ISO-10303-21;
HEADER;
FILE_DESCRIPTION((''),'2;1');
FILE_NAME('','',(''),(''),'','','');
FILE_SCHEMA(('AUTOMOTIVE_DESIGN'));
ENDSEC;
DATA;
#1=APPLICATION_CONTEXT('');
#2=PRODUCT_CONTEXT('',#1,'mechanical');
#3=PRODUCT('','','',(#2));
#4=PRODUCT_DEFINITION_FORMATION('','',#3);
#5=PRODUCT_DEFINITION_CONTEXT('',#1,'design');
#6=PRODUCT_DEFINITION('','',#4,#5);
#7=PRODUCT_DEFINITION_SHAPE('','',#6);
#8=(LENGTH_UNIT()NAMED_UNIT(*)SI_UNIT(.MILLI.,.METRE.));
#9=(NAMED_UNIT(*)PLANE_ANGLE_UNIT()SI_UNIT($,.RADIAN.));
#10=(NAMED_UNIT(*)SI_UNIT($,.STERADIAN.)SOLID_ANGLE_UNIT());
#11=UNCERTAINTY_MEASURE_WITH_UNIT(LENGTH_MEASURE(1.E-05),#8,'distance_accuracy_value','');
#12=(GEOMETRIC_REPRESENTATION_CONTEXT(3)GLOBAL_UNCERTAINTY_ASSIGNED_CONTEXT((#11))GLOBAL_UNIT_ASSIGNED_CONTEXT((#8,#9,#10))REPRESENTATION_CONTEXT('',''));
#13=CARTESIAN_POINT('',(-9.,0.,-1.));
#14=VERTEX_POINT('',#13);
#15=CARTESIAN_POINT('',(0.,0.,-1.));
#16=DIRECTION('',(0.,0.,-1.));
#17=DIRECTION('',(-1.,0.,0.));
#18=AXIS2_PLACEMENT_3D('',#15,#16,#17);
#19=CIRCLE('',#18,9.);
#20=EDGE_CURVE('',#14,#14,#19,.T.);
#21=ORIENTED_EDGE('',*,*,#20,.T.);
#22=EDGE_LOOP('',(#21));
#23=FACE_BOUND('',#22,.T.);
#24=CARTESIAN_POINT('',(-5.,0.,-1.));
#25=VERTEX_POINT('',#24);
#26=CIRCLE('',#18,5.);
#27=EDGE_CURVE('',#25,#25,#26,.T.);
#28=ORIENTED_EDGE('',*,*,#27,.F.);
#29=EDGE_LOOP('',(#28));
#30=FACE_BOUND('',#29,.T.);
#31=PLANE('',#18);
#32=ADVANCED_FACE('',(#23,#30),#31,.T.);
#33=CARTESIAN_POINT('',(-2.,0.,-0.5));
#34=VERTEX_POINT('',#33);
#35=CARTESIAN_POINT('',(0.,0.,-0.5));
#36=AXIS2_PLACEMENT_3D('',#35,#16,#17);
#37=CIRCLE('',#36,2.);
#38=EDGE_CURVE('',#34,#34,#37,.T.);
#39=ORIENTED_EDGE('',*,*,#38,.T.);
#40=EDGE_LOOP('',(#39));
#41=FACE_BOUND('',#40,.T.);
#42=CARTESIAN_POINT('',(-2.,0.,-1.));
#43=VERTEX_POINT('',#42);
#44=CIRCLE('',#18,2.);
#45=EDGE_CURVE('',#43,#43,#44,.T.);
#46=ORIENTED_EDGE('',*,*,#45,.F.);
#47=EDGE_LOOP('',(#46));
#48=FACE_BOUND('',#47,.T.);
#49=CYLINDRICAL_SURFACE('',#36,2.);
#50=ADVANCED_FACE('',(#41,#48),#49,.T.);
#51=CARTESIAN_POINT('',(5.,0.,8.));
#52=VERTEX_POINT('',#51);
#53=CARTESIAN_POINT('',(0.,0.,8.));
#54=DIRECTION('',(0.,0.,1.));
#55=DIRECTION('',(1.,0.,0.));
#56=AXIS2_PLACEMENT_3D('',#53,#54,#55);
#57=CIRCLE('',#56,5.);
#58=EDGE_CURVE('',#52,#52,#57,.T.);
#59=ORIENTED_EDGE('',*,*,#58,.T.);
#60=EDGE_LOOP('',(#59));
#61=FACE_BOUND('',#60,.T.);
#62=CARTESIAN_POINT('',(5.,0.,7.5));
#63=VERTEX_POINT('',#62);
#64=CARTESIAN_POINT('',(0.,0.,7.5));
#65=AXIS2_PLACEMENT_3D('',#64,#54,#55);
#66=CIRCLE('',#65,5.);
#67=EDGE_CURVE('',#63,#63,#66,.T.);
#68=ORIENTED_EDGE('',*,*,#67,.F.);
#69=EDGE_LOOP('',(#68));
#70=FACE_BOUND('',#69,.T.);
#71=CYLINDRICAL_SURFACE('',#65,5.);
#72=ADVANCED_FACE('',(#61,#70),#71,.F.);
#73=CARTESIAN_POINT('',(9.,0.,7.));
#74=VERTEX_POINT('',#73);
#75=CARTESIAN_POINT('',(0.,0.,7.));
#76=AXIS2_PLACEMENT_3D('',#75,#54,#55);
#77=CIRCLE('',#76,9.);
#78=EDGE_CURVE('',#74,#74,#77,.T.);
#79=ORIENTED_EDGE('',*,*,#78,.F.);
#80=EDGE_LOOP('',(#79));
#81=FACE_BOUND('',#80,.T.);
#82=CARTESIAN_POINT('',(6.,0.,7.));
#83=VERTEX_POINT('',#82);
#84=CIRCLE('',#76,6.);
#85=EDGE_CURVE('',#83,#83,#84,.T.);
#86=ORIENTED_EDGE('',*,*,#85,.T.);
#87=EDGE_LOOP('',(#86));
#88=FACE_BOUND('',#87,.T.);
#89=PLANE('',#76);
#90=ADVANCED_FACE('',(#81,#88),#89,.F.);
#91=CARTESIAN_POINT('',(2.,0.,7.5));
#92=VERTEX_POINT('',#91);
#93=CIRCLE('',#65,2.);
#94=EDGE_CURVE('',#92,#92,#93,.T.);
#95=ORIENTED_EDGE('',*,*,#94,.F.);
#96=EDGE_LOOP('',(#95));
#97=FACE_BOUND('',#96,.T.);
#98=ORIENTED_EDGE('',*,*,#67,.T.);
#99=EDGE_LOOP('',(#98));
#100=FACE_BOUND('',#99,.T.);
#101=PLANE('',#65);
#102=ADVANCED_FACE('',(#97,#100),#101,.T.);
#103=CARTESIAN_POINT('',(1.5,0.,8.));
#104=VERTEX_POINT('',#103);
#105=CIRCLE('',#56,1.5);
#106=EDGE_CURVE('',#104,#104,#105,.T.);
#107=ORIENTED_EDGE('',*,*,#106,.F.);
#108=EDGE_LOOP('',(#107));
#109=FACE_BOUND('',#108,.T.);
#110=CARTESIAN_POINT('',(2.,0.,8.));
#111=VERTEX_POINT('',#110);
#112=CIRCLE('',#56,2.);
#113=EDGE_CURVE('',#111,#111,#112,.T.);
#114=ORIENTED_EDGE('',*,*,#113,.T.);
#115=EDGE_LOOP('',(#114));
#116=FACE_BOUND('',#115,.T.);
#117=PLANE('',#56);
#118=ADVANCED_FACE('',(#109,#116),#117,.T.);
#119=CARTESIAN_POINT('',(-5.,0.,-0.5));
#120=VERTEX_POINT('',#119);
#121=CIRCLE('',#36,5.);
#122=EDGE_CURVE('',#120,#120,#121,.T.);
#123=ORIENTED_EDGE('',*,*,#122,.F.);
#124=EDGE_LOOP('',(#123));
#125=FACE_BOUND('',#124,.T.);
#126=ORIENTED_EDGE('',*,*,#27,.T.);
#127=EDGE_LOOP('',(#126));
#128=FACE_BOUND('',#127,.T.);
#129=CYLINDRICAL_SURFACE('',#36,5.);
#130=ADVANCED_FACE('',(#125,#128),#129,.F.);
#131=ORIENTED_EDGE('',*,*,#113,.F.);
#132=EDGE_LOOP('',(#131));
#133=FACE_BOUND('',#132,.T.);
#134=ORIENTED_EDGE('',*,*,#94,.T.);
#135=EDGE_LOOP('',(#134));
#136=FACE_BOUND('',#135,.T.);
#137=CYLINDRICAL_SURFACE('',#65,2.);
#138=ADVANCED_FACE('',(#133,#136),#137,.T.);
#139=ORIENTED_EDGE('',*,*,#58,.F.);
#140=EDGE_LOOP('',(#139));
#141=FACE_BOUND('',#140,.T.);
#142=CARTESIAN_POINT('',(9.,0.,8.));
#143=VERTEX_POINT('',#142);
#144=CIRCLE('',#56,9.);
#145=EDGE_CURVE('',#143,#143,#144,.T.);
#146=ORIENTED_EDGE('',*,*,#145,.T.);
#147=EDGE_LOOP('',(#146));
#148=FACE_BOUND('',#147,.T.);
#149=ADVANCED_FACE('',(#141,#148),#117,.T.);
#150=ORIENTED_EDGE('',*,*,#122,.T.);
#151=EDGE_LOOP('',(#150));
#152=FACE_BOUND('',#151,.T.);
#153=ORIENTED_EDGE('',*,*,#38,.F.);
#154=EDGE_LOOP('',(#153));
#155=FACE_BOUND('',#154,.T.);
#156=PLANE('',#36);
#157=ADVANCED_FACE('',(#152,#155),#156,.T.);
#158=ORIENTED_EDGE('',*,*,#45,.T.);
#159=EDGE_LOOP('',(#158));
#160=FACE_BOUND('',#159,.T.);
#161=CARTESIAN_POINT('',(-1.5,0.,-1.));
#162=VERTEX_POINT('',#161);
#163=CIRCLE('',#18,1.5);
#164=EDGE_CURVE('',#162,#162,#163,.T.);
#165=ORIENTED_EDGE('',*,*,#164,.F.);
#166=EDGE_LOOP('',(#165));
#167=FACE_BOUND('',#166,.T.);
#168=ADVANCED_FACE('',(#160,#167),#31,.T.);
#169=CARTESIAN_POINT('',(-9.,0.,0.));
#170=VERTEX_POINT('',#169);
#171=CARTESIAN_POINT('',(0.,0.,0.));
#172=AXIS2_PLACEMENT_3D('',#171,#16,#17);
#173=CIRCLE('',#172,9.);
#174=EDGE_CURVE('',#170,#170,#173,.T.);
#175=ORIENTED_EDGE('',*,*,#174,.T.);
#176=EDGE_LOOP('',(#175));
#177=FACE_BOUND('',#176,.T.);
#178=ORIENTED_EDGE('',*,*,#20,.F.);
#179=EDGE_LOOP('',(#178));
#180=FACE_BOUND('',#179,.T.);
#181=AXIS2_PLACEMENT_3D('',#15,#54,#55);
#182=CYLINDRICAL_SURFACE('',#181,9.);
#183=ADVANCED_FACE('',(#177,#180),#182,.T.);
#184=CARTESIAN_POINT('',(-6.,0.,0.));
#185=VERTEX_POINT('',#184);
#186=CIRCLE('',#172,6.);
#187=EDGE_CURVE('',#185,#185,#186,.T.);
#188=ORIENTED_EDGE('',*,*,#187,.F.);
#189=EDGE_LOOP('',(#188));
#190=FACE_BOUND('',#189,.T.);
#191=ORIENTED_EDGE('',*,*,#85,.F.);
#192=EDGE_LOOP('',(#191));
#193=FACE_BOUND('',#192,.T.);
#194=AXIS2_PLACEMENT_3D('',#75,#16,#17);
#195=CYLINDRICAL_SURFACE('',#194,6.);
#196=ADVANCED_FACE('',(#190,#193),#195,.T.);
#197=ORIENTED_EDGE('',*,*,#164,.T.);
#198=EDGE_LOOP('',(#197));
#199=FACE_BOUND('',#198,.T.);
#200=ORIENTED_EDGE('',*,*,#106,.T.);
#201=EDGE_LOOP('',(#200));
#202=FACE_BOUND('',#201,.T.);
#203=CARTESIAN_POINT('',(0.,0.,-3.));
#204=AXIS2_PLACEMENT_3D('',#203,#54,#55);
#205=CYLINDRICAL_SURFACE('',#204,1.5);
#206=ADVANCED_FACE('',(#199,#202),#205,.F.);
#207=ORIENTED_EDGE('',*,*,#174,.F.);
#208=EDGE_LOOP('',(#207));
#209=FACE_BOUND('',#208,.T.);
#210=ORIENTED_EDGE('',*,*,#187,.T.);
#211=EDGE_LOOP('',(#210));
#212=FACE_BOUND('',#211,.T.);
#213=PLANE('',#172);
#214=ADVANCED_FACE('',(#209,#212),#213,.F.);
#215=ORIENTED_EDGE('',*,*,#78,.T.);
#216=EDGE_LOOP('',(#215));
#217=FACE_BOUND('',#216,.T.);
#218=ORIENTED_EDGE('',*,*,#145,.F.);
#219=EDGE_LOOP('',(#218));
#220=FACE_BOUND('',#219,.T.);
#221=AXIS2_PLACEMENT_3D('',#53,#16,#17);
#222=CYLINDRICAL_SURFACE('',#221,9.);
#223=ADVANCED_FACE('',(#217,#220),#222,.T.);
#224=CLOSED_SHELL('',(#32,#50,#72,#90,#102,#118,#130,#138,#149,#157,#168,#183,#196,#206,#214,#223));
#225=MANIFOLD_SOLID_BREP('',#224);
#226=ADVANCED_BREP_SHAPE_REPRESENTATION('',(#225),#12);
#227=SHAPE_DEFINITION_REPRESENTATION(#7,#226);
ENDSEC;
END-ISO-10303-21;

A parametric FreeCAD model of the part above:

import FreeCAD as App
import Part
import Sketcher
from FreeCAD import Vector

doc = App.newDocument("Part")
params = doc.addObject("Spreadsheet::Sheet", "Params")
for row, (alias, value) in enumerate([
    ("sketch1_diameter", "12 mm"),
    ("pad1_length", "7 mm"),
    ("sketch2_diameter", "18 mm"),
    ("pad2_length", "1 mm"),
    ("sketch3_diameter", "18 mm"),
    ("pad3_length", "1 mm"),
    ("sketch4_diameter", "3 mm"),
    ("pocket1_length", "11 mm"),
    ("sketch5_diameter", "10 mm"),
    ("sketch5_diameter2", "4 mm"),
    ("pocket2_length", "0.5 mm"),
    ("sketch6_diameter", "10 mm"),
    ("sketch6_diameter2", "4 mm"),
    ("pocket3_length", "0.5 mm"),
], start=1):
    params.set(f"A{row}", alias)
    params.set(f"B{row}", "=" + value)
    params.setAlias(f"B{row}", alias)

body = doc.addObject("PartDesign::Body", "Body")

sketch1 = body.newObject("Sketcher::SketchObject", "Sketch")
sketch1.AttachmentSupport = (doc.getObject("XY_Plane"), [""])
sketch1.MapMode = "FlatFace"
sketch1.addGeometry(Part.Circle(Vector(0, 0, 0), Vector(0, 0, 1), 6), False)
sketch1.addConstraint(Sketcher.Constraint("Coincident", 0, 3, -1, 1))
sketch1.addConstraint(Sketcher.Constraint("Diameter", 0, 12.0))
sketch1.setExpression("Constraints[1]", "Params.sketch1_diameter")
pad1 = body.newObject("PartDesign::Pad", "Pad")
pad1.Profile = sketch1
pad1.setExpression("Length", "Params.pad1_length")

sketch2 = body.newObject("Sketcher::SketchObject", "Sketch001")
sketch2.AttachmentSupport = (doc.getObject("XY_Plane"), [""])
sketch2.MapMode = "FlatFace"
sketch2.AttachmentOffset = App.Placement(Vector(0, 0, 7), App.Rotation())
sketch2.addGeometry(Part.Circle(Vector(0, 0, 0), Vector(0, 0, 1), 9), False)
sketch2.addConstraint(Sketcher.Constraint("Coincident", 0, 3, -1, 1))
sketch2.addConstraint(Sketcher.Constraint("Diameter", 0, 18.0))
sketch2.setExpression("Constraints[1]", "Params.sketch2_diameter")
pad2 = body.newObject("PartDesign::Pad", "Pad001")
pad2.Profile = sketch2
pad2.setExpression("Length", "Params.pad2_length")

sketch3 = body.newObject("Sketcher::SketchObject", "Sketch002")
sketch3.AttachmentSupport = (doc.getObject("XY_Plane"), [""])
sketch3.MapMode = "FlatFace"
sketch3.addGeometry(Part.Circle(Vector(0, 0, 0), Vector(0, 0, 1), 9), False)
sketch3.addConstraint(Sketcher.Constraint("Coincident", 0, 3, -1, 1))
sketch3.addConstraint(Sketcher.Constraint("Diameter", 0, 18.0))
sketch3.setExpression("Constraints[1]", "Params.sketch3_diameter")
pad3 = body.newObject("PartDesign::Pad", "Pad002")
pad3.Profile = sketch3
pad3.setExpression("Length", "Params.pad3_length")
pad3.Reversed = True

sketch4 = body.newObject("Sketcher::SketchObject", "Sketch003")
sketch4.AttachmentSupport = (doc.getObject("XY_Plane"), [""])
sketch4.MapMode = "FlatFace"
sketch4.AttachmentOffset = App.Placement(Vector(0, 0, 8), App.Rotation())
sketch4.addGeometry(Part.Circle(Vector(0, 0, 0), Vector(0, 0, 1), 1.5), False)
sketch4.addConstraint(Sketcher.Constraint("Coincident", 0, 3, -1, 1))
sketch4.addConstraint(Sketcher.Constraint("Diameter", 0, 3.0))
sketch4.setExpression("Constraints[1]", "Params.sketch4_diameter")
pocket1 = body.newObject("PartDesign::Pocket", "Pocket")
pocket1.Profile = sketch4
pocket1.setExpression("Length", "Params.pocket1_length")

sketch5 = body.newObject("Sketcher::SketchObject", "Sketch004")
sketch5.AttachmentSupport = (doc.getObject("XY_Plane"), [""])
sketch5.MapMode = "FlatFace"
sketch5.AttachmentOffset = App.Placement(Vector(0, 0, -1), App.Rotation())
sketch5.addGeometry(Part.Circle(Vector(0, 0, 0), Vector(0, 0, 1), 5), False)
sketch5.addGeometry(Part.Circle(Vector(0, 0, 0), Vector(0, 0, 1), 2), False)
sketch5.addConstraint(Sketcher.Constraint("Coincident", 0, 3, -1, 1))
sketch5.addConstraint(Sketcher.Constraint("Coincident", 1, 3, -1, 1))
sketch5.addConstraint(Sketcher.Constraint("Diameter", 0, 10.0))
sketch5.addConstraint(Sketcher.Constraint("Diameter", 1, 4.0))
sketch5.setExpression("Constraints[2]", "Params.sketch5_diameter")
sketch5.setExpression("Constraints[3]", "Params.sketch5_diameter2")
pocket2 = body.newObject("PartDesign::Pocket", "Pocket001")
pocket2.Profile = sketch5
pocket2.setExpression("Length", "Params.pocket2_length")
pocket2.Reversed = True

sketch6 = body.newObject("Sketcher::SketchObject", "Sketch005")
sketch6.AttachmentSupport = (doc.getObject("XY_Plane"), [""])
sketch6.MapMode = "FlatFace"
sketch6.AttachmentOffset = App.Placement(Vector(0, 0, 8), App.Rotation())
sketch6.addGeometry(Part.Circle(Vector(0, 0, 0), Vector(0, 0, 1), 5), False)
sketch6.addGeometry(Part.Circle(Vector(0, 0, 0), Vector(0, 0, 1), 2), False)
sketch6.addConstraint(Sketcher.Constraint("Coincident", 0, 3, -1, 1))
sketch6.addConstraint(Sketcher.Constraint("Coincident", 1, 3, -1, 1))
sketch6.addConstraint(Sketcher.Constraint("Diameter", 0, 10.0))
sketch6.addConstraint(Sketcher.Constraint("Diameter", 1, 4.0))
sketch6.setExpression("Constraints[2]", "Params.sketch6_diameter")
sketch6.setExpression("Constraints[3]", "Params.sketch6_diameter2")
pocket3 = body.newObject("PartDesign::Pocket", "Pocket002")
pocket3.Profile = sketch6
pocket3.setExpression("Length", "Params.pocket3_length")

doc.recompute()
